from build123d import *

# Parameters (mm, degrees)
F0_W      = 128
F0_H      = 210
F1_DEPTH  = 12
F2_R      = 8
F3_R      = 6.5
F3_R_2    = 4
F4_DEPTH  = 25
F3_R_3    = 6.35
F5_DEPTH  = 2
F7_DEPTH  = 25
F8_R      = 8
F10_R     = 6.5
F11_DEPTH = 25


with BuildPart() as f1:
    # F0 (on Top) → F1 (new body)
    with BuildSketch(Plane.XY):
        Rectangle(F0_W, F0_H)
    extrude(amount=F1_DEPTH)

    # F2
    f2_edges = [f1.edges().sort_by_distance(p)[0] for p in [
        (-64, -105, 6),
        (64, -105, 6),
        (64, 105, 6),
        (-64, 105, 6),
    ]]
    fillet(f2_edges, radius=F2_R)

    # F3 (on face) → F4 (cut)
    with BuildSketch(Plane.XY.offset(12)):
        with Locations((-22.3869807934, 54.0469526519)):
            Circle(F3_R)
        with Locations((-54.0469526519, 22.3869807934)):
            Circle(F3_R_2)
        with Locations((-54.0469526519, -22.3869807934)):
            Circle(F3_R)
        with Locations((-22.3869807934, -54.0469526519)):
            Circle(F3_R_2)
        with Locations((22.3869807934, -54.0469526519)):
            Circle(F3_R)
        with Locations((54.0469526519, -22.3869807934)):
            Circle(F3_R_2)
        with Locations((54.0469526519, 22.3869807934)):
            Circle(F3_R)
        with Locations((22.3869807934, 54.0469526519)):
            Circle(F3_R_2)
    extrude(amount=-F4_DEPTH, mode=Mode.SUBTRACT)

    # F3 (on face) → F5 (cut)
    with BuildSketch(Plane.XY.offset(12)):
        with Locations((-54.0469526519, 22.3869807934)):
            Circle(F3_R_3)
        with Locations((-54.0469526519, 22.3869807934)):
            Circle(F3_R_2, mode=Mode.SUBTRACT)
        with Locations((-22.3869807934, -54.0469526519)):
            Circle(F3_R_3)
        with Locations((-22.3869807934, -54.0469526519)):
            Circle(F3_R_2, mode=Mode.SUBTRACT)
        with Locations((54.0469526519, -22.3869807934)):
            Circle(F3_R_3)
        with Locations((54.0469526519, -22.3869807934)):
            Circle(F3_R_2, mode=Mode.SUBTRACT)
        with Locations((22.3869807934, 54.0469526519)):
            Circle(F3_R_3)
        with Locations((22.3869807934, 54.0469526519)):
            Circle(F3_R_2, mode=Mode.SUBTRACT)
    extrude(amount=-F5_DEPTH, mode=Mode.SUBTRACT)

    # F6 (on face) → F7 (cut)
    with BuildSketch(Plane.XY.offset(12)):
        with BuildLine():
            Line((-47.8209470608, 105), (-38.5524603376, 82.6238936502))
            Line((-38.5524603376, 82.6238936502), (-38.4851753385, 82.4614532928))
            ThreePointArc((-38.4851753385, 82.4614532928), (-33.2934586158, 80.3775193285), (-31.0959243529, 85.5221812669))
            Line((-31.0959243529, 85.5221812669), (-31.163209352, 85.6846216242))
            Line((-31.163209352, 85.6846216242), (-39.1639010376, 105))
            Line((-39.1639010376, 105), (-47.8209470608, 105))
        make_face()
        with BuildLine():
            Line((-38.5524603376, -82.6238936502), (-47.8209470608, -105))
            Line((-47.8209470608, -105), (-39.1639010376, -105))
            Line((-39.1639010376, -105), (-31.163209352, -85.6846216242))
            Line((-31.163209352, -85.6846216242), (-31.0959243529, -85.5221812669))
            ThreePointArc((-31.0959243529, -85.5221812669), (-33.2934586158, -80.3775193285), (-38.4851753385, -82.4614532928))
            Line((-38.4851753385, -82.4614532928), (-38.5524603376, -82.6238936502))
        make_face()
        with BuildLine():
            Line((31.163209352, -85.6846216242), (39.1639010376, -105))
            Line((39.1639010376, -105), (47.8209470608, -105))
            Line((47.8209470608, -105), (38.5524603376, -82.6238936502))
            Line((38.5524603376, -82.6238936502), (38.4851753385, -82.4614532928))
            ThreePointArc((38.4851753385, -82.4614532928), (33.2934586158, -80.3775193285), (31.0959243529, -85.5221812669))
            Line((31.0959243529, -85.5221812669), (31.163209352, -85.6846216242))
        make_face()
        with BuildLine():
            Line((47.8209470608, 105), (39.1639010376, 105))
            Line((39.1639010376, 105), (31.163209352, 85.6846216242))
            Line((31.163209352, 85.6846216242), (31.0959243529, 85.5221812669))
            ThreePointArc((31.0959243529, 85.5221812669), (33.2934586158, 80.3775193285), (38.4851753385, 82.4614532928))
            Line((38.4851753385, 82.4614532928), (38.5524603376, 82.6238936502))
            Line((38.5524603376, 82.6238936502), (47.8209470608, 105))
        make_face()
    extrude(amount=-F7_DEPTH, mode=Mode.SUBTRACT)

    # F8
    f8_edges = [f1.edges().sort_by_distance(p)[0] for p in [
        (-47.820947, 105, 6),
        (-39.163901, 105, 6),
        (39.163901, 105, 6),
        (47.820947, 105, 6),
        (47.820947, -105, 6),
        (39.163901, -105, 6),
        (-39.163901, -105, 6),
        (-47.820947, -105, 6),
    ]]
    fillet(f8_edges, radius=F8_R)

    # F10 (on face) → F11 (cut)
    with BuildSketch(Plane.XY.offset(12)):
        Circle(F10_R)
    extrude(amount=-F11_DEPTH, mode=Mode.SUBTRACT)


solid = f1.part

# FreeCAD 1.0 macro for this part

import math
import FreeCAD as App
import Part
import Sketcher
Q = App.Units.Quantity


def edges_at(feature, points):
    """Names of the edges that pass closest to the given points."""
    edges = feature.Shape.Edges
    near = lambda p: min(range(len(edges)), key=lambda i: edges[i].distToShape(Part.Vertex(*p))[0])
    return sorted({f"Edge{near(p) + 1}" for p in points})


def add_polygon(sketch, points):
    """Adds a closed chain of lines whose ends are joined by coincident constraints."""
    first, n = sketch.GeometryCount, len(points)
    for a, b in zip(points, points[1:] + points[:1]):
        sketch.addGeometry(Part.LineSegment(App.Vector(*a, 0), App.Vector(*b, 0)), False)
    for i in range(n):
        sketch.addConstraint(Sketcher.Constraint("Coincident", first + i, 2, first + (i + 1) % n, 1))

doc = App.newDocument("Part")
body = doc.addObject("PartDesign::Body", "Body")

# Sketch on XY plane
sketch1 = body.newObject("Sketcher::SketchObject", "Sketch")
sketch1.AttachmentSupport = (doc.getObject("XY_Plane"), [""])
sketch1.MapMode = "FlatFace"
add_polygon(sketch1, [(-64, 105), (-64, -105), (64, -105), (64, 105)])  # lines 0-3
sketch1.addConstraint([
    Sketcher.Constraint("Vertical", 0),
    Sketcher.Constraint("Horizontal", 1),
    Sketcher.Constraint("Vertical", 2),
    Sketcher.Constraint("Horizontal", 3),
    Sketcher.Constraint("Symmetric", 0, 2, 2, 2, -1, 1),
    Sketcher.Constraint("DistanceX", 1, 1, 1, 2, Q("128 mm")),
    Sketcher.Constraint("DistanceY", 0, 2, 0, 1, Q("210 mm")),
])
pad1 = body.newObject("PartDesign::Pad", "Pad")
pad1.Profile = sketch1
pad1.Length = 12
doc.recompute()

fillet = body.newObject("PartDesign::Fillet", "Fillet")
fillet.Base = (pad1, edges_at(pad1, [
    (-64, -105, 6),
    (64, -105, 6),
    (64, 105, 6),
    (-64, 105, 6),
]))
fillet.Radius = 8

# Sketch on XY plane
sketch2 = body.newObject("Sketcher::SketchObject", "Sketch001")
sketch2.AttachmentSupport = (doc.getObject("XY_Plane"), [""])
sketch2.MapMode = "FlatFace"
sketch2.AttachmentOffset = App.Placement(App.Vector(0, 0, 12), App.Rotation())
sketch2.addGeometry([
    Part.Circle(App.Vector(-22.4, 54, 0), App.Vector(0, 0, 1), 6.5),  # 0
    Part.Circle(App.Vector(-54, 22.4, 0), App.Vector(0, 0, 1), 4),  # 1
    Part.Circle(App.Vector(-54, -22.4, 0), App.Vector(0, 0, 1), 6.5),  # 2
    Part.Circle(App.Vector(-22.4, -54, 0), App.Vector(0, 0, 1), 4),  # 3
    Part.Circle(App.Vector(22.4, -54, 0), App.Vector(0, 0, 1), 6.5),  # 4
    Part.Circle(App.Vector(54, -22.4, 0), App.Vector(0, 0, 1), 4),  # 5
    Part.Circle(App.Vector(54, 22.4, 0), App.Vector(0, 0, 1), 6.5),  # 6
    Part.Circle(App.Vector(22.4, 54, 0), App.Vector(0, 0, 1), 4),  # 7
], False)
sketch2.addConstraint([
    Sketcher.Constraint("Equal", 0, 2),
    Sketcher.Constraint("Equal", 1, 3),
    Sketcher.Constraint("Equal", 2, 4),
    Sketcher.Constraint("Equal", 3, 5),
    Sketcher.Constraint("Equal", 4, 6),
    Sketcher.Constraint("Equal", 5, 7),
    Sketcher.Constraint("Symmetric", 0, 3, 4, 3, -1, 1),
    Sketcher.Constraint("Symmetric", 1, 3, 5, 3, -1, 1),
    Sketcher.Constraint("Symmetric", 2, 3, 6, 3, -1, 1),
    Sketcher.Constraint("Symmetric", 3, 3, 7, 3, -1, 1),
    Sketcher.Constraint("Symmetric", 3, 3, 4, 3, -2),
    Sketcher.Constraint("Symmetric", 2, 3, 5, 3, -2),
    Sketcher.Constraint("Diameter", 0, Q("13 mm")),
    Sketcher.Constraint("Diameter", 1, Q("8 mm")),
    Sketcher.Constraint("DistanceX", 0, 3, -1, 1, Q("22.386981 mm")),
    Sketcher.Constraint("DistanceY", -1, 1, 1, 3, Q("22.386981 mm")),
    Sketcher.Constraint("DistanceX", 1, 3, 0, 3, Q("31.659972 mm")),
    Sketcher.Constraint("DistanceY", 1, 3, 0, 3, Q("31.659972 mm")),
])
pocket1 = body.newObject("PartDesign::Pocket", "Pocket")
pocket1.Profile = sketch2
pocket1.Length = 25

# Sketch on XY plane
sketch3 = body.newObject("Sketcher::SketchObject", "Sketch002")
sketch3.AttachmentSupport = (doc.getObject("XY_Plane"), [""])
sketch3.MapMode = "FlatFace"
sketch3.AttachmentOffset = App.Placement(App.Vector(0, 0, 12), App.Rotation())
sketch3.addGeometry([
    Part.Circle(App.Vector(-54, 22.4, 0), App.Vector(0, 0, 1), 6.3),  # 0
    Part.Circle(App.Vector(-54, 22.4, 0), App.Vector(0, 0, 1), 4),  # 1
    Part.Circle(App.Vector(-22.4, -54, 0), App.Vector(0, 0, 1), 6.3),  # 2
    Part.Circle(App.Vector(-22.4, -54, 0), App.Vector(0, 0, 1), 4),  # 3
    Part.Circle(App.Vector(54, -22.4, 0), App.Vector(0, 0, 1), 6.3),  # 4
    Part.Circle(App.Vector(54, -22.4, 0), App.Vector(0, 0, 1), 4),  # 5
    Part.Circle(App.Vector(22.4, 54, 0), App.Vector(0, 0, 1), 6.3),  # 6
    Part.Circle(App.Vector(22.4, 54, 0), App.Vector(0, 0, 1), 4),  # 7
], False)
sketch3.addConstraint([
    Sketcher.Constraint("Coincident", 1, 3, 0, 3),
    Sketcher.Constraint("Coincident", 3, 3, 2, 3),
    Sketcher.Constraint("Coincident", 5, 3, 4, 3),
    Sketcher.Constraint("Coincident", 7, 3, 6, 3),
    Sketcher.Constraint("Equal", 0, 2),
    Sketcher.Constraint("Equal", 1, 3),
    Sketcher.Constraint("Equal", 2, 4),
    Sketcher.Constraint("Equal", 3, 5),
    Sketcher.Constraint("Equal", 4, 6),
    Sketcher.Constraint("Equal", 5, 7),
    Sketcher.Constraint("Symmetric", 0, 3, 4, 3, -1, 1),
    Sketcher.Constraint("Symmetric", 2, 3, 6, 3, -1, 1),
    Sketcher.Constraint("Diameter", 1, Q("8 mm")),
    Sketcher.Constraint("Diameter", 0, Q("12.7 mm")),
    Sketcher.Constraint("DistanceY", -1, 1, 0, 3, Q("22.386981 mm")),
    Sketcher.Constraint("DistanceX", 2, 3, -1, 1, Q("22.386981 mm")),
    Sketcher.Constraint("DistanceX", 0, 3, 2, 3, Q("31.659972 mm")),
    Sketcher.Constraint("DistanceY", 2, 3, 4, 3, Q("31.659972 mm")),
])
pocket2 = body.newObject("PartDesign::Pocket", "Pocket001")
pocket2.Profile = sketch3
pocket2.Length = 2

# Sketch on XY plane
sketch4 = body.newObject("Sketcher::SketchObject", "Sketch003")
sketch4.AttachmentSupport = (doc.getObject("XY_Plane"), [""])
sketch4.MapMode = "FlatFace"
sketch4.AttachmentOffset = App.Placement(App.Vector(0, 0, 12), App.Rotation())
sketch4.addGeometry([
    Part.LineSegment(App.Vector(-47.820947, 105, 0), App.Vector(-38.55246, 82.623894, 0)),  # 0
    Part.LineSegment(App.Vector(-38.55246, 82.623894, 0), App.Vector(-38.485175, 82.461453, 0)),  # 1
    Part.ArcOfCircle(Part.Circle(App.Vector(-34.824192, 84.073037, 0), App.Vector(0, 0, 1), 4), math.radians(-156.240651), math.radians(21.240651)),  # 2
    Part.LineSegment(App.Vector(-31.095924, 85.522181, 0), App.Vector(-31.163209, 85.684622, 0)),  # 3
    Part.LineSegment(App.Vector(-31.163209, 85.684622, 0), App.Vector(-39.163901, 105, 0)),  # 4
    Part.LineSegment(App.Vector(-39.163901, 105, 0), App.Vector(-47.820947, 105, 0)),  # 5
    Part.LineSegment(App.Vector(-38.55246, -82.623894, 0), App.Vector(-47.820947, -105, 0)),  # 6
    Part.LineSegment(App.Vector(-47.820947, -105, 0), App.Vector(-39.163901, -105, 0)),  # 7
    Part.LineSegment(App.Vector(-39.163901, -105, 0), App.Vector(-31.163209, -85.684622, 0)),  # 8
    Part.LineSegment(App.Vector(-31.163209, -85.684622, 0), App.Vector(-31.095924, -85.522181, 0)),  # 9
    Part.ArcOfCircle(Part.Circle(App.Vector(-34.824192, -84.073037, 0), App.Vector(0, 0, 1), 4), math.radians(-21.240651), math.radians(156.240651)),  # 10
    Part.LineSegment(App.Vector(-38.485175, -82.461453, 0), App.Vector(-38.55246, -82.623894, 0)),  # 11
    Part.LineSegment(App.Vector(31.163209, -85.684622, 0), App.Vector(39.163901, -105, 0)),  # 12
    Part.LineSegment(App.Vector(39.163901, -105, 0), App.Vector(47.820947, -105, 0)),  # 13
    Part.LineSegment(App.Vector(47.820947, -105, 0), App.Vector(38.55246, -82.623894, 0)),  # 14
    Part.LineSegment(App.Vector(38.55246, -82.623894, 0), App.Vector(38.485175, -82.461453, 0)),  # 15
    Part.ArcOfCircle(Part.Circle(App.Vector(34.824192, -84.073037, 0), App.Vector(0, 0, 1), 4), math.radians(23.759349), math.radians(201.240651)),  # 16
    Part.LineSegment(App.Vector(31.095924, -85.522181, 0), App.Vector(31.163209, -85.684622, 0)),  # 17
    Part.LineSegment(App.Vector(47.820947, 105, 0), App.Vector(39.163901, 105, 0)),  # 18
    Part.LineSegment(App.Vector(39.163901, 105, 0), App.Vector(31.163209, 85.684622, 0)),  # 19
    Part.LineSegment(App.Vector(31.163209, 85.684622, 0), App.Vector(31.095924, 85.522181, 0)),  # 20
    Part.ArcOfCircle(Part.Circle(App.Vector(34.824192, 84.073037, 0), App.Vector(0, 0, 1), 4), math.radians(158.759349), math.radians(336.240651)),  # 21
    Part.LineSegment(App.Vector(38.485175, 82.461453, 0), App.Vector(38.55246, 82.623894, 0)),  # 22
    Part.LineSegment(App.Vector(38.55246, 82.623894, 0), App.Vector(47.820947, 105, 0)),  # 23
], False)
sketch4.addConstraint([
    Sketcher.Constraint("Coincident", 0, 2, 1, 1),
    Sketcher.Constraint("Coincident", 1, 2, 2, 1),
    Sketcher.Constraint("Coincident", 2, 2, 3, 1),
    Sketcher.Constraint("Coincident", 3, 2, 4, 1),
    Sketcher.Constraint("Coincident", 4, 2, 5, 1),
    Sketcher.Constraint("Coincident", 5, 2, 0, 1),
    Sketcher.Constraint("Coincident", 6, 2, 7, 1),
    Sketcher.Constraint("Coincident", 7, 2, 8, 1),
    Sketcher.Constraint("Coincident", 8, 2, 9, 1),
    Sketcher.Constraint("Coincident", 9, 2, 10, 1),
    Sketcher.Constraint("Coincident", 10, 2, 11, 1),
    Sketcher.Constraint("Coincident", 11, 2, 6, 1),
    Sketcher.Constraint("Coincident", 12, 2, 13, 1),
    Sketcher.Constraint("Coincident", 13, 2, 14, 1),
    Sketcher.Constraint("Coincident", 14, 2, 15, 1),
    Sketcher.Constraint("Coincident", 15, 2, 16, 1),
    Sketcher.Constraint("Coincident", 16, 2, 17, 1),
    Sketcher.Constraint("Coincident", 17, 2, 12, 1),
    Sketcher.Constraint("Coincident", 18, 2, 19, 1),
    Sketcher.Constraint("Coincident", 19, 2, 20, 1),
    Sketcher.Constraint("Coincident", 20, 2, 21, 1),
    Sketcher.Constraint("Coincident", 21, 2, 22, 1),
    Sketcher.Constraint("Coincident", 22, 2, 23, 1),
    Sketcher.Constraint("Coincident", 23, 2, 18, 1),
    Sketcher.Constraint("Horizontal", 5),
    Sketcher.Constraint("Horizontal", 7),
    Sketcher.Constraint("Horizontal", 13),
    Sketcher.Constraint("Horizontal", 18),
    Sketcher.Constraint("Equal", 2, 10),
    Sketcher.Constraint("Equal", 10, 16),
    Sketcher.Constraint("Equal", 16, 21),
    Sketcher.Constraint("Symmetric", 2, 3, 16, 3, -1, 1),
    Sketcher.Constraint("Symmetric", 10, 3, 21, 3, -1, 1),
    Sketcher.Constraint("Symmetric", 4, 2, 12, 2, -1, 1),
    Sketcher.Constraint("Symmetric", 0, 2, 14, 2, -1, 1),
    Sketcher.Constraint("Symmetric", 3, 2, 17, 2, -1, 1),
    Sketcher.Constraint("Symmetric", 7, 2, 18, 2, -1, 1),
    Sketcher.Constraint("Symmetric", 8, 2, 19, 2, -1, 1),
    Sketcher.Constraint("Symmetric", 11, 2, 22, 2, -1, 1),
    Sketcher.Constraint("Symmetric", 10, 3, 16, 3, -2),
    Sketcher.Constraint("Symmetric", 7, 2, 12, 2, -2),
    Sketcher.Constraint("Symmetric", 11, 2, 14, 2, -2),
    Sketcher.Constraint("Symmetric", 8, 2, 17, 2, -2),
    Sketcher.Constraint("Parallel", 0, 1),
    Sketcher.Constraint("Parallel", 1, 3),
    Sketcher.Constraint("Parallel", 3, 4),
    Sketcher.Constraint("Parallel", 6, 8),
    Sketcher.Constraint("Parallel", 8, 9),
    Sketcher.Constraint("Parallel", 9, 11),
    Sketcher.Constraint("Parallel", 12, 14),
    Sketcher.Constraint("Parallel", 14, 15),
    Sketcher.Constraint("Parallel", 15, 17),
    Sketcher.Constraint("Parallel", 19, 20),
    Sketcher.Constraint("Parallel", 20, 22),
    Sketcher.Constraint("Parallel", 22, 23),
    Sketcher.Constraint("Equal", 1, 3),
    Sketcher.Constraint("Radius", 2, Q("4 mm")),
    Sketcher.Constraint("DistanceY", -1, 1, 4, 2, Q("105 mm")),
    Sketcher.Constraint("Angle", 0, Q("-67.5 deg")),
    Sketcher.Constraint("DistanceX", 4, 2, -1, 1, Q("39.163901 mm")),
    Sketcher.Constraint("DistanceX", 3, 2, 21, 3, Q("65.987402 mm")),
    Sketcher.Constraint("DistanceX", 9, 2, 15, 2, Q("69.5811 mm")),
    Sketcher.Constraint("DistanceX", 5, 2, 5, 1, Q("8.657046 mm")),
    Sketcher.Constraint("DistanceX", 0, 2, -1, 1, Q("38.55246 mm")),
])
pocket3 = body.newObject("PartDesign::Pocket", "Pocket002")
pocket3.Profile = sketch4
pocket3.Length = 25
doc.recompute()

fillet2 = body.newObject("PartDesign::Fillet", "Fillet001")
fillet2.Base = (pocket3, edges_at(pocket3, [
    (-47.821, 105, 6),
    (-39.164, 105, 6),
    (39.164, 105, 6),
    (47.821, 105, 6),
    (47.821, -105, 6),
    (39.164, -105, 6),
    (-39.164, -105, 6),
    (-47.821, -105, 6),
]))
fillet2.Radius = 8

# Sketch on XY plane
sketch5 = body.newObject("Sketcher::SketchObject", "Sketch004")
sketch5.AttachmentSupport = (doc.getObject("XY_Plane"), [""])
sketch5.MapMode = "FlatFace"
sketch5.AttachmentOffset = App.Placement(App.Vector(0, 0, 12), App.Rotation())
sketch5.addGeometry(Part.Circle(App.Vector(0, 0, 0), App.Vector(0, 0, 1), 6), False)
sketch5.addConstraint([
    Sketcher.Constraint("Coincident", 0, 3, -1, 1),
    Sketcher.Constraint("Diameter", 0, Q("13 mm")),
])
pocket4 = body.newObject("PartDesign::Pocket", "Pocket003")
pocket4.Profile = sketch5
pocket4.Length = 25

doc.recompute()
